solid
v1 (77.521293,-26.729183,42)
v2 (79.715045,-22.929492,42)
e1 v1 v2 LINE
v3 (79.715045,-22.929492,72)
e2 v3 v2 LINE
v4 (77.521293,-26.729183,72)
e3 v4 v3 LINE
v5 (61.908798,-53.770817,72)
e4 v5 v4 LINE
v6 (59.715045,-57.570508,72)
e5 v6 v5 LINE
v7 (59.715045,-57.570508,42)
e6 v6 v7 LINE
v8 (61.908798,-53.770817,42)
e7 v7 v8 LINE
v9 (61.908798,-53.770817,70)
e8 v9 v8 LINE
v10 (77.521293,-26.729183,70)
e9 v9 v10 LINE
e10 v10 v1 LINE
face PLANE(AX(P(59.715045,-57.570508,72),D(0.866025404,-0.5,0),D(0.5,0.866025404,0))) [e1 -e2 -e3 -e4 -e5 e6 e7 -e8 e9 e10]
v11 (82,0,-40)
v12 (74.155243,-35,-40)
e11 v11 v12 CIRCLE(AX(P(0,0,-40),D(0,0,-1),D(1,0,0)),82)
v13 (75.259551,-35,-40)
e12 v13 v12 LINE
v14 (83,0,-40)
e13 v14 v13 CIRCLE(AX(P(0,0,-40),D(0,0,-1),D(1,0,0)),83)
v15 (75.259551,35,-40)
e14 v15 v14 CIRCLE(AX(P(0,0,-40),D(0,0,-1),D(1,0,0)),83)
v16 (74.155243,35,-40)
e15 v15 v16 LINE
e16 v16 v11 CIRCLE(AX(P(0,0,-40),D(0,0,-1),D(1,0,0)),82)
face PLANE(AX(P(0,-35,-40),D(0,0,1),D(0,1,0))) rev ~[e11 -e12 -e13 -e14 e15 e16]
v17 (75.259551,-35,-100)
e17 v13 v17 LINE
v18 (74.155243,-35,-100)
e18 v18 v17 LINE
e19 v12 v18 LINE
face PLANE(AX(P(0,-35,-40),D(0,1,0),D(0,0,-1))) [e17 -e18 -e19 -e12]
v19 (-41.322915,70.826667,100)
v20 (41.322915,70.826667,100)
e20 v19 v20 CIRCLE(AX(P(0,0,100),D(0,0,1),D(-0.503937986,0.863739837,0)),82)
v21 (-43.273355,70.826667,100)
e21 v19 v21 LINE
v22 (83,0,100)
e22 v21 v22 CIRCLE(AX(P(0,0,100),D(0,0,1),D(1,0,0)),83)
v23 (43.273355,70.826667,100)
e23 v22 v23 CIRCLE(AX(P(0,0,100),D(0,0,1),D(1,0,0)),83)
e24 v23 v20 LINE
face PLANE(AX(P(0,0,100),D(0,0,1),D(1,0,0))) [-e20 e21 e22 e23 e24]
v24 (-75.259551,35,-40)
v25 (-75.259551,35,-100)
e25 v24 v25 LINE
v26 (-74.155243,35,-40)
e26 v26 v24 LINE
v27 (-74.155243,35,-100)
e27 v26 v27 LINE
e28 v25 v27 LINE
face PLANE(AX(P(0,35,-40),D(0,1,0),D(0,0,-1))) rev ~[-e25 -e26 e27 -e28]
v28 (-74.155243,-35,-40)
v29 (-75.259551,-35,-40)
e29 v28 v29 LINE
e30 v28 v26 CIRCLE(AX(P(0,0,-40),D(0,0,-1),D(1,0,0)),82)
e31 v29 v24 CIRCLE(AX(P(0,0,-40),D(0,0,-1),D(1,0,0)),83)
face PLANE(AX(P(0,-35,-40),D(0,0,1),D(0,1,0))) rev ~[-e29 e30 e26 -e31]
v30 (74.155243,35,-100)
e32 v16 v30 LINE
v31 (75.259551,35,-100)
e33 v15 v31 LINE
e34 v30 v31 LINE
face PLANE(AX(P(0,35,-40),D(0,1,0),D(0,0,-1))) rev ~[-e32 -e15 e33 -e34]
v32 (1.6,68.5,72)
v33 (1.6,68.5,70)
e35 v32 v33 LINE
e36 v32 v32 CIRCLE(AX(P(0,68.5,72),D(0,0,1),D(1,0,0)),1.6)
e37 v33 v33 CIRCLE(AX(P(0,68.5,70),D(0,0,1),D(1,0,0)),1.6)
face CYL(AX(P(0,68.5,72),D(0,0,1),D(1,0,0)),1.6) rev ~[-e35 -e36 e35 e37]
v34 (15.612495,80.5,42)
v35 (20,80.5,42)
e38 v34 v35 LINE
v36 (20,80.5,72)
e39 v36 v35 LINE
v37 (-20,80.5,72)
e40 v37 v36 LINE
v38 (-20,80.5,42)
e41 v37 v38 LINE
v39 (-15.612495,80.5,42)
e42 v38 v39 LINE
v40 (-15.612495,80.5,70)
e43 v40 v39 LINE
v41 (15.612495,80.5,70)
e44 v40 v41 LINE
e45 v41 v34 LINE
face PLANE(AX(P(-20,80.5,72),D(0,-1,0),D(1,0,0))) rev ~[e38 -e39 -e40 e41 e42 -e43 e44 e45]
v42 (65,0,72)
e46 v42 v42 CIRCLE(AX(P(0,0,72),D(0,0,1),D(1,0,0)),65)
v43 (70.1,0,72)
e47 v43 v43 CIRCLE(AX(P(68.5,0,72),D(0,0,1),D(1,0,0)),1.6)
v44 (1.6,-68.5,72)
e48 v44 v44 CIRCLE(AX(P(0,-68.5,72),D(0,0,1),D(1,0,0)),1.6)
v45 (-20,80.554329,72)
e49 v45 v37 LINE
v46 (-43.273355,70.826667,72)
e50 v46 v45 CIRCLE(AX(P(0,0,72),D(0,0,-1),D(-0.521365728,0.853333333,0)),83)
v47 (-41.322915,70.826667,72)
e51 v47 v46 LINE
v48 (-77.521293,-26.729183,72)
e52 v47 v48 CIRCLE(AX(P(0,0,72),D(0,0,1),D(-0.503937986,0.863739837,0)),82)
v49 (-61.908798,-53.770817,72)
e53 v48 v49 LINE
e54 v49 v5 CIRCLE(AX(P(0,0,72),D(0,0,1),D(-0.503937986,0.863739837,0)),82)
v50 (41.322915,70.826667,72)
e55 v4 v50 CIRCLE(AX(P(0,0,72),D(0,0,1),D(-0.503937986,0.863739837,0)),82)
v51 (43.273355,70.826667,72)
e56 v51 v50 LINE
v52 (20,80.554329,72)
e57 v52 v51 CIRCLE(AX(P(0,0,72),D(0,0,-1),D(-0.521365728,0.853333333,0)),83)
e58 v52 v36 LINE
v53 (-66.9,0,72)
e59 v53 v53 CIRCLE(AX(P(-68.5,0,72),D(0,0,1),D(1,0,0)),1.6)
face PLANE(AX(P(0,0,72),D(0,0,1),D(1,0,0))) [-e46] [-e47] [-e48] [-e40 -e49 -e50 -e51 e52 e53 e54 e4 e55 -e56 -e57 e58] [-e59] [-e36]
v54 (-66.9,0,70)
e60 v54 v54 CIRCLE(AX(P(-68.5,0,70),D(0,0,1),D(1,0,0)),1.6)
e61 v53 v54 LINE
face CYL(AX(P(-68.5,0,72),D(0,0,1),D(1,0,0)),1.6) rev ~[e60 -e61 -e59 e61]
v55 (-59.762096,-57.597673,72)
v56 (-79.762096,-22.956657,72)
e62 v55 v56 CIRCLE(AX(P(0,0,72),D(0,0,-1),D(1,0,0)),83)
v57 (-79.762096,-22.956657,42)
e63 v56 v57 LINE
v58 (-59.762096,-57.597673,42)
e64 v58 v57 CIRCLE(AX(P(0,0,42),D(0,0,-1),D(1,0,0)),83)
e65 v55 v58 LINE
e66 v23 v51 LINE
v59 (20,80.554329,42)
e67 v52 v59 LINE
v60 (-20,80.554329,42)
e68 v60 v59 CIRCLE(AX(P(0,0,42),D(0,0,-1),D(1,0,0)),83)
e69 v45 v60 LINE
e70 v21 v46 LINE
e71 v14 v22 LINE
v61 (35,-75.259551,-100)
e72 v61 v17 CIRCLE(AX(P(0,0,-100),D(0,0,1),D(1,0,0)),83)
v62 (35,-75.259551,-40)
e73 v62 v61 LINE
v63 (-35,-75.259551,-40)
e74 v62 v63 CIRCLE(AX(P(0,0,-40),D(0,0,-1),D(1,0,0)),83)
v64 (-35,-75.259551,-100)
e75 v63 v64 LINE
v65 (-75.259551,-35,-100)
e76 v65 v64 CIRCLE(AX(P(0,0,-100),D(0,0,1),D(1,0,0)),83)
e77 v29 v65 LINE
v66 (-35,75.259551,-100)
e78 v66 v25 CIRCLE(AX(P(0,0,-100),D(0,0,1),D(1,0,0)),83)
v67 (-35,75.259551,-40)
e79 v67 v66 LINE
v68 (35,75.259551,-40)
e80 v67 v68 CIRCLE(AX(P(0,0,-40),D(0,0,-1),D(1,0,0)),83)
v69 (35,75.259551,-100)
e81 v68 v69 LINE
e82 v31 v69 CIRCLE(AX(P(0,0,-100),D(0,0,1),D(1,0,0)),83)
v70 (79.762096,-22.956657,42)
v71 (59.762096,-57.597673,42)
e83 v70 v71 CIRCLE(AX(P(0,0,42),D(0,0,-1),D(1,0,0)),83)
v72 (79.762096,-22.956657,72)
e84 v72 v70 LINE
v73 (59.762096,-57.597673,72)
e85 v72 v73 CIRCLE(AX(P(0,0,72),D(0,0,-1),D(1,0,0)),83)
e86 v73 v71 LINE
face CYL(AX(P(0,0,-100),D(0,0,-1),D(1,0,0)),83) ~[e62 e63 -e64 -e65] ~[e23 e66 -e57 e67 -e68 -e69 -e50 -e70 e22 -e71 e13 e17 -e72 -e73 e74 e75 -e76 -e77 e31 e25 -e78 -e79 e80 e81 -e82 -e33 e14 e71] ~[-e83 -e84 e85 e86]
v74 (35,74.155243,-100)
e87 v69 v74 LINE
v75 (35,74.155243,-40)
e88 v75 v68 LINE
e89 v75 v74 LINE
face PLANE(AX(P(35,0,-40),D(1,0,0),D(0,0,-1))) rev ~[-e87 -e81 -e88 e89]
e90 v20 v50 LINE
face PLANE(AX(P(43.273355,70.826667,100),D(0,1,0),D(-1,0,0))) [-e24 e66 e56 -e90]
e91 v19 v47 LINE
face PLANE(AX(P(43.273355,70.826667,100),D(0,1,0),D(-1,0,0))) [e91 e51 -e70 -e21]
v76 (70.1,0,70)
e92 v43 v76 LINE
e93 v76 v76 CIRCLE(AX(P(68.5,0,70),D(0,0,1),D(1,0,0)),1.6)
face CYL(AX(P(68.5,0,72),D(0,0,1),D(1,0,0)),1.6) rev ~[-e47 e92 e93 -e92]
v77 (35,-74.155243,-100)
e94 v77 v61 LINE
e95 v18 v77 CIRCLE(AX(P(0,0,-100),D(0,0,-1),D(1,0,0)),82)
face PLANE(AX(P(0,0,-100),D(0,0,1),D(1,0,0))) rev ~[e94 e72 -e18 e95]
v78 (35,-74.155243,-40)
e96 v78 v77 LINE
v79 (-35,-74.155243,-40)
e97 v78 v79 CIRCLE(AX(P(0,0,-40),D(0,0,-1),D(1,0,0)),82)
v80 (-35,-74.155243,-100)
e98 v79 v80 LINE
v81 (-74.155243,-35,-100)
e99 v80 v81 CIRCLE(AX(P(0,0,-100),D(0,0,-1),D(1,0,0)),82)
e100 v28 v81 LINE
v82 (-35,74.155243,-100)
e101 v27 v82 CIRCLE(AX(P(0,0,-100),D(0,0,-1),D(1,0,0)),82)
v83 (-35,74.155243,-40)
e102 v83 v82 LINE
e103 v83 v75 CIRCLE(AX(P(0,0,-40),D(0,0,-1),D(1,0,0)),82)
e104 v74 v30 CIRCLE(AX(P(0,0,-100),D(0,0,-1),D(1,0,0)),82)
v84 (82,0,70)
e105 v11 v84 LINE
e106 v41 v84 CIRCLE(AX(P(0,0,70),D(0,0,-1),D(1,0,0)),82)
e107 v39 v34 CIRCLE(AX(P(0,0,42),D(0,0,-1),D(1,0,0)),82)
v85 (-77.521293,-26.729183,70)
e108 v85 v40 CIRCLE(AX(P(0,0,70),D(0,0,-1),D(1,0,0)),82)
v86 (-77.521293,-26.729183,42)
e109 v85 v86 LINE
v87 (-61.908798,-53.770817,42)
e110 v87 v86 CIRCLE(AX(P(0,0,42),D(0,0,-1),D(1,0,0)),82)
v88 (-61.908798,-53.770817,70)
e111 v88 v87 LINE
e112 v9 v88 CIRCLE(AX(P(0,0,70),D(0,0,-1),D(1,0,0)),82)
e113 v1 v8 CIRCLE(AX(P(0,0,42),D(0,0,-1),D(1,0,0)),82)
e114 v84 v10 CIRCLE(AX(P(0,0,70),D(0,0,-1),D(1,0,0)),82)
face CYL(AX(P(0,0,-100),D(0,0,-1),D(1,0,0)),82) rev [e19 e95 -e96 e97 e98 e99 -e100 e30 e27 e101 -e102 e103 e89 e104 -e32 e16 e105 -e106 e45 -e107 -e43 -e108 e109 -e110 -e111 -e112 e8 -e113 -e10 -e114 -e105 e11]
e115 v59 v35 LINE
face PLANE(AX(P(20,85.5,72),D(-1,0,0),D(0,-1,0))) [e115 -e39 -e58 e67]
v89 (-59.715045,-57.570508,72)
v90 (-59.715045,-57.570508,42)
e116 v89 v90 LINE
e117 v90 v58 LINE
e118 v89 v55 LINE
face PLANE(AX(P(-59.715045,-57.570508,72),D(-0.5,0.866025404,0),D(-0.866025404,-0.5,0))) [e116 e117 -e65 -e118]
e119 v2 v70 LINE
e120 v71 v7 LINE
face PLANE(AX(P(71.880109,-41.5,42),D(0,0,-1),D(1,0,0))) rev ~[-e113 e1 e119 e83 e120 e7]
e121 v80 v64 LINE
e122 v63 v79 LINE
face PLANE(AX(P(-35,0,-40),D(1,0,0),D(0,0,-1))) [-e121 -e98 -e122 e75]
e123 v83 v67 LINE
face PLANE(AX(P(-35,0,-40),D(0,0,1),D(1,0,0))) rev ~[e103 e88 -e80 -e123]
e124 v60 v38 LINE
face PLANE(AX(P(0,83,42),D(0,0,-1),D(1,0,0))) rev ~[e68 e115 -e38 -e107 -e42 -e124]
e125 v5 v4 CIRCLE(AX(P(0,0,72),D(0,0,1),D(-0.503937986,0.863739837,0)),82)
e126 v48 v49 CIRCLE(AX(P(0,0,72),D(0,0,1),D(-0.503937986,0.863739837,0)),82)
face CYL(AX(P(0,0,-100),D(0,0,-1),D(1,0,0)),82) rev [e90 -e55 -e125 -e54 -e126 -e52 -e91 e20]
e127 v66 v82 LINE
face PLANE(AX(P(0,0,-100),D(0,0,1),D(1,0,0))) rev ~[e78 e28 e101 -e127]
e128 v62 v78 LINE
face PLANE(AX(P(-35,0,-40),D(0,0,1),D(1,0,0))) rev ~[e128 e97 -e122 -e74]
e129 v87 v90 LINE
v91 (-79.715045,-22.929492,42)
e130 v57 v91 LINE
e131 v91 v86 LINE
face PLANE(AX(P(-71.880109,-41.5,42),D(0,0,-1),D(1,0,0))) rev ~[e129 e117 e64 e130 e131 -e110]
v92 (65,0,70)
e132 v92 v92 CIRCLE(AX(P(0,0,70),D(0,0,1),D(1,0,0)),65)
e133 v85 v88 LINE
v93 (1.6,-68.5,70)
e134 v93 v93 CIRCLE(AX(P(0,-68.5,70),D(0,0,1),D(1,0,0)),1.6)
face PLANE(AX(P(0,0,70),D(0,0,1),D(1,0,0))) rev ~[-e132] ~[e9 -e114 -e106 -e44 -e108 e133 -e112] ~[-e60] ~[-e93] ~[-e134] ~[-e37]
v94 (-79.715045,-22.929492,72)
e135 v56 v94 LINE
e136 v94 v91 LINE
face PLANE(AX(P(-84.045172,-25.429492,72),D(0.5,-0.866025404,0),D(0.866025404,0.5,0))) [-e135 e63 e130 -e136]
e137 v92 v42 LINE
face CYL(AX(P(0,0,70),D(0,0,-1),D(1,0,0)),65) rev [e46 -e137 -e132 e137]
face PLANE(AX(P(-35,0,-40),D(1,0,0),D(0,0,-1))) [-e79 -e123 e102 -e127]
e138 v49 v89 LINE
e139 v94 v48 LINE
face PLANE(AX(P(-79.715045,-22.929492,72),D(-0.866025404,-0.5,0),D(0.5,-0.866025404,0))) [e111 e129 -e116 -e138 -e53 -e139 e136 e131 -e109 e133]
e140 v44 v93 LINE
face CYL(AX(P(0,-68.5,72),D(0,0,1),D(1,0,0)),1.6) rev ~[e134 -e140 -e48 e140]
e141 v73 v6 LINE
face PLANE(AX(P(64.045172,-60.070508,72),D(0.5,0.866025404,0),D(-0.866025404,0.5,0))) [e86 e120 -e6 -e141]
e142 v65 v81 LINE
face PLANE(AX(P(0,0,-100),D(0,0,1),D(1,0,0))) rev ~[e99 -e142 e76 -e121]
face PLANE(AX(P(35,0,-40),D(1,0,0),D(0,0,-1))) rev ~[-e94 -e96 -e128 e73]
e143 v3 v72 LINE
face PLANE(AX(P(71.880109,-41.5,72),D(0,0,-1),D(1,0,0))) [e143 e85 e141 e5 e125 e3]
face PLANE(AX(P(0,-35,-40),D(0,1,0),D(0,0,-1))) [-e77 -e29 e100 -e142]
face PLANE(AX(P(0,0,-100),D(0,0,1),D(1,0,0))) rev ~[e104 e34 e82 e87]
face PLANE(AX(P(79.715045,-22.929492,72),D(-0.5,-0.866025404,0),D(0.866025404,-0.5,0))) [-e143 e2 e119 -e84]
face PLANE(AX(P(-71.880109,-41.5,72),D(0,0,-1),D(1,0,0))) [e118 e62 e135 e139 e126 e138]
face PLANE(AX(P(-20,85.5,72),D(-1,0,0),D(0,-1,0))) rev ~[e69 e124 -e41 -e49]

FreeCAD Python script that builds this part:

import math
import FreeCAD as App
import Part
import Sketcher
Q = App.Units.Quantity


def faces_at(feature, points):
    """Names of the faces that lie closest to the given points."""
    faces = feature.Shape.Faces
    near = lambda p: min(range(len(faces)), key=lambda i: faces[i].distToShape(Part.Vertex(*p))[0])
    return sorted({f"Face{near(p) + 1}" for p in points})


def add_polygon(sketch, points):
    """Adds a closed chain of lines whose ends are joined by coincident constraints."""
    first, n = sketch.GeometryCount, len(points)
    for a, b in zip(points, points[1:] + points[:1]):
        sketch.addGeometry(Part.LineSegment(App.Vector(*a, 0), App.Vector(*b, 0)), False)
    for i in range(n):
        sketch.addConstraint(Sketcher.Constraint("Coincident", first + i, 2, first + (i + 1) % n, 1))

doc = App.newDocument("Part")
body = doc.addObject("PartDesign::Body", "Body")

# Sketch on XY plane
sketch1 = body.newObject("Sketcher::SketchObject", "Sketch")
sketch1.AttachmentSupport = (doc.getObject("XY_Plane"), [""])
sketch1.MapMode = "FlatFace"
sketch1.addGeometry(Part.Circle(App.Vector(0, 0, 0), App.Vector(0, 0, 1), 83), False)
sketch1.addConstraint([
    Sketcher.Constraint("Coincident", 0, 3, -1, 1),
    Sketcher.Constraint("Diameter", 0, Q("166 mm")),
])
pad1 = body.newObject("PartDesign::Pad", "Pad")
pad1.Profile = sketch1
pad1.Type = "TwoLengths"
pad1.Length = 100
pad1.Length2 = 100
doc.recompute()

thickness = body.newObject("PartDesign::Thickness", "Thickness")
thickness.Base = (pad1, faces_at(pad1, [(0, 0, -100), (0, 0, 100)]))
thickness.Value = 1
thickness.Reversed = True
thickness.Join = "Intersection"

# Sketch on XY plane
sketch2 = body.newObject("Sketcher::SketchObject", "Sketch001")
sketch2.AttachmentSupport = (doc.getObject("XY_Plane"), [""])
sketch2.MapMode = "FlatFace"
sketch2.AttachmentOffset = App.Placement(App.Vector(0, 0, 70), App.Rotation())
sketch2.addGeometry([
    Part.Circle(App.Vector(0, 0, 0), App.Vector(0, 0, 1), 82),
    Part.Circle(App.Vector(0, 0, 0), App.Vector(0, 0, 1), 65),
], False)
sketch2.addConstraint([
    Sketcher.Constraint("Coincident", 0, 3, -1, 1),
    Sketcher.Constraint("Coincident", 1, 3, -1, 1),
    Sketcher.Constraint("Diameter", 0, Q("165 mm")),
    Sketcher.Constraint("Diameter", 1, Q("130 mm")),
])
pad2 = body.newObject("PartDesign::Pad", "Pad001")
pad2.Profile = sketch2
pad2.Length = 2

# Sketch on XY plane
sketch3 = body.newObject("Sketcher::SketchObject", "Sketch002")
sketch3.AttachmentSupport = (doc.getObject("XY_Plane"), [""])
sketch3.MapMode = "FlatFace"
sketch3.AttachmentOffset = App.Placement(App.Vector(0, 0, 100), App.Rotation())
sketch3.addGeometry([
    Part.LineSegment(App.Vector(-43, 71, 0), App.Vector(43, 71, 0)),
    Part.ArcOfCircle(Part.Circle(App.Vector(0, 0, 0), App.Vector(0, 0, 1), 83), math.radians(59), math.radians(121)),
], False)
sketch3.addConstraint([
    Sketcher.Constraint("Coincident", 0, 1, 1, 2),
    Sketcher.Constraint("Coincident", 1, 1, 0, 2),
    Sketcher.Constraint("Horizontal", 0),
    Sketcher.Constraint("Coincident", 1, 3, -1, 1),
    Sketcher.Constraint("Radius", 1, Q("83 mm")),
    Sketcher.Constraint("DistanceX", 0, 1, 0, 2, Q("86.546711 mm")),
])
pocket1 = body.newObject("PartDesign::Pocket", "Pocket")
pocket1.Profile = sketch3
pocket1.Length = 28

# Sketch on XZ plane
sketch4 = body.newObject("Sketcher::SketchObject", "Sketch003")
sketch4.AttachmentSupport = (doc.getObject("XZ_Plane"), [""])
sketch4.MapMode = "FlatFace"
add_polygon(sketch4, [(-35, -100), (-35, -40), (35, -40), (35, -100)])  # lines 0-3
sketch4.addConstraint([
    Sketcher.Constraint("Vertical", 0),
    Sketcher.Constraint("Horizontal", 1),
    Sketcher.Constraint("Vertical", 2),
    Sketcher.Constraint("Horizontal", 3),
    Sketcher.Constraint("DistanceX", 1, 1, 1, 2, Q("70 mm")),
    Sketcher.Constraint("DistanceY", 0, 1, 0, 2, Q("60 mm")),
    Sketcher.Constraint("DistanceX", 0, 2, -1, 1, Q("35 mm")),
    Sketcher.Constraint("DistanceY", 0, 2, -1, 1, Q("40 mm")),
])
pocket2 = body.newObject("PartDesign::Pocket", "Pocket001")
pocket2.Profile = sketch4
pocket2.Length = 310.402335
pocket2.Midplane = True
doc.recompute()

polarpattern = body.newObject("PartDesign::PolarPattern", "PolarPattern")
polarpattern.Originals = [pocket2]
polarpattern.Axis = (doc.getObject("Z_Axis"), [""])
polarpattern.Angle = 360
polarpattern.Occurrences = 4
body.Tip = polarpattern

# Sketch on XY plane
sketch5 = body.newObject("Sketcher::SketchObject", "Sketch004")
sketch5.AttachmentSupport = (doc.getObject("XY_Plane"), [""])
sketch5.MapMode = "FlatFace"
sketch5.AttachmentOffset = App.Placement(App.Vector(0, 0, 72), App.Rotation())
add_polygon(sketch5, [(-64, -60), (-84, -25), (-80, -23), (-60, -58)])  # lines 0-3
add_polygon(sketch5, [(-20, 80), (-20, 86), (20, 86), (20, 80)])  # lines 4-7
add_polygon(sketch5, [(84, -25), (64, -60), (60, -58), (80, -23)])  # lines 8-11
sketch5.addConstraint([
    Sketcher.Constraint("Vertical", 4),
    Sketcher.Constraint("Horizontal", 5),
    Sketcher.Constraint("Vertical", 6),
    Sketcher.Constraint("Horizontal", 7),
    Sketcher.Constraint("Symmetric", 3, 2, 8, 2, -2),
    Sketcher.Constraint("Symmetric", 2, 2, 9, 2, -2),
    Sketcher.Constraint("Symmetric", 1, 2, 10, 2, -2),
    Sketcher.Constraint("Symmetric", 0, 2, 11, 2, -2),
    Sketcher.Constraint("Perpendicular", 0, 1),
    Sketcher.Constraint("Perpendicular", 1, 2),
    Sketcher.Constraint("Perpendicular", 2, 3),
    Sketcher.Constraint("DistanceX", 5, 1, 5, 2, Q("40 mm")),
    Sketcher.Constraint("DistanceY", 4, 1, 4, 2, Q("5 mm")),
    Sketcher.Constraint("Angle", 0, Q("120 deg")),
    Sketcher.Constraint("Distance", 0, Q("40 mm")),
    Sketcher.Constraint("Distance", 1, Q("5 mm")),
    Sketcher.Constraint("DistanceX", 4, 2, -1, 1, Q("20 mm")),
    Sketcher.Constraint("DistanceY", -1, 1, 4, 2, Q("85.5 mm")),
    Sketcher.Constraint("DistanceY", 0, 2, -1, 1, Q("25.429492 mm")),
    Sketcher.Constraint("DistanceX", 2, 2, 9, 2, Q("119.43009 mm")),
])
pocket3 = body.newObject("PartDesign::Pocket", "Pocket002")
pocket3.Profile = sketch5
pocket3.Length = 30

# Sketch on XY plane
sketch6 = body.newObject("Sketcher::SketchObject", "Sketch005")
sketch6.AttachmentSupport = (doc.getObject("XY_Plane"), [""])
sketch6.MapMode = "FlatFace"
sketch6.AttachmentOffset = App.Placement(App.Vector(0, 0, 72), App.Rotation())
sketch6.addGeometry(Part.Circle(App.Vector(0, 68.5, 0), App.Vector(0, 0, 1), 1.6), False)
sketch6.addConstraint([
    Sketcher.Constraint("PointOnObject", 0, 3, -2),
    Sketcher.Constraint("Diameter", 0, Q("3.2 mm")),
    Sketcher.Constraint("DistanceY", -1, 1, 0, 3, Q("68.5 mm")),
])
pocket4 = body.newObject("PartDesign::Pocket", "Pocket003")
pocket4.Profile = sketch6
pocket4.Type = "UpToFirst"

# Sketch on XY plane
sketch7 = body.newObject("Sketcher::SketchObject", "Sketch006")
sketch7.AttachmentSupport = (doc.getObject("XY_Plane"), [""])
sketch7.MapMode = "FlatFace"
sketch7.AttachmentOffset = App.Placement(App.Vector(0, 0, 72), App.Rotation())
sketch7.addGeometry(Part.Circle(App.Vector(-68.5, 0, 0), App.Vector(0, 0, 1), 1.6), False)
sketch7.addConstraint([
    Sketcher.Constraint("PointOnObject", 0, 3, -1),
    Sketcher.Constraint("Diameter", 0, Q("3.2 mm")),
    Sketcher.Constraint("DistanceX", 0, 3, -1, 1, Q("68.5 mm")),
])
pocket5 = body.newObject("PartDesign::Pocket", "Pocket004")
pocket5.Profile = sketch7
pocket5.Type = "UpToFirst"

# Sketch on XY plane
sketch8 = body.newObject("Sketcher::SketchObject", "Sketch007")
sketch8.AttachmentSupport = (doc.getObject("XY_Plane"), [""])
sketch8.MapMode = "FlatFace"
sketch8.AttachmentOffset = App.Placement(App.Vector(0, 0, 72), App.Rotation())
sketch8.addGeometry(Part.Circle(App.Vector(0, -68.5, 0), App.Vector(0, 0, 1), 1.6), False)
sketch8.addConstraint([
    Sketcher.Constraint("PointOnObject", 0, 3, -2),
    Sketcher.Constraint("Diameter", 0, Q("3.2 mm")),
    Sketcher.Constraint("DistanceY", 0, 3, -1, 1, Q("68.5 mm")),
])
pocket6 = body.newObject("PartDesign::Pocket", "Pocket005")
pocket6.Profile = sketch8
pocket6.Type = "UpToFirst"

# Sketch on XY plane
sketch9 = body.newObject("Sketcher::SketchObject", "Sketch008")
sketch9.AttachmentSupport = (doc.getObject("XY_Plane"), [""])
sketch9.MapMode = "FlatFace"
sketch9.AttachmentOffset = App.Placement(App.Vector(0, 0, 72), App.Rotation())
sketch9.addGeometry(Part.Circle(App.Vector(68.5, 0, 0), App.Vector(0, 0, 1), 1.6), False)
sketch9.addConstraint([
    Sketcher.Constraint("PointOnObject", 0, 3, -1),
    Sketcher.Constraint("Diameter", 0, Q("3.2 mm")),
    Sketcher.Constraint("DistanceX", -1, 1, 0, 3, Q("68.5 mm")),
])
pocket7 = body.newObject("PartDesign::Pocket", "Pocket006")
pocket7.Profile = sketch9
pocket7.Type = "UpToFirst"

doc.recompute()
